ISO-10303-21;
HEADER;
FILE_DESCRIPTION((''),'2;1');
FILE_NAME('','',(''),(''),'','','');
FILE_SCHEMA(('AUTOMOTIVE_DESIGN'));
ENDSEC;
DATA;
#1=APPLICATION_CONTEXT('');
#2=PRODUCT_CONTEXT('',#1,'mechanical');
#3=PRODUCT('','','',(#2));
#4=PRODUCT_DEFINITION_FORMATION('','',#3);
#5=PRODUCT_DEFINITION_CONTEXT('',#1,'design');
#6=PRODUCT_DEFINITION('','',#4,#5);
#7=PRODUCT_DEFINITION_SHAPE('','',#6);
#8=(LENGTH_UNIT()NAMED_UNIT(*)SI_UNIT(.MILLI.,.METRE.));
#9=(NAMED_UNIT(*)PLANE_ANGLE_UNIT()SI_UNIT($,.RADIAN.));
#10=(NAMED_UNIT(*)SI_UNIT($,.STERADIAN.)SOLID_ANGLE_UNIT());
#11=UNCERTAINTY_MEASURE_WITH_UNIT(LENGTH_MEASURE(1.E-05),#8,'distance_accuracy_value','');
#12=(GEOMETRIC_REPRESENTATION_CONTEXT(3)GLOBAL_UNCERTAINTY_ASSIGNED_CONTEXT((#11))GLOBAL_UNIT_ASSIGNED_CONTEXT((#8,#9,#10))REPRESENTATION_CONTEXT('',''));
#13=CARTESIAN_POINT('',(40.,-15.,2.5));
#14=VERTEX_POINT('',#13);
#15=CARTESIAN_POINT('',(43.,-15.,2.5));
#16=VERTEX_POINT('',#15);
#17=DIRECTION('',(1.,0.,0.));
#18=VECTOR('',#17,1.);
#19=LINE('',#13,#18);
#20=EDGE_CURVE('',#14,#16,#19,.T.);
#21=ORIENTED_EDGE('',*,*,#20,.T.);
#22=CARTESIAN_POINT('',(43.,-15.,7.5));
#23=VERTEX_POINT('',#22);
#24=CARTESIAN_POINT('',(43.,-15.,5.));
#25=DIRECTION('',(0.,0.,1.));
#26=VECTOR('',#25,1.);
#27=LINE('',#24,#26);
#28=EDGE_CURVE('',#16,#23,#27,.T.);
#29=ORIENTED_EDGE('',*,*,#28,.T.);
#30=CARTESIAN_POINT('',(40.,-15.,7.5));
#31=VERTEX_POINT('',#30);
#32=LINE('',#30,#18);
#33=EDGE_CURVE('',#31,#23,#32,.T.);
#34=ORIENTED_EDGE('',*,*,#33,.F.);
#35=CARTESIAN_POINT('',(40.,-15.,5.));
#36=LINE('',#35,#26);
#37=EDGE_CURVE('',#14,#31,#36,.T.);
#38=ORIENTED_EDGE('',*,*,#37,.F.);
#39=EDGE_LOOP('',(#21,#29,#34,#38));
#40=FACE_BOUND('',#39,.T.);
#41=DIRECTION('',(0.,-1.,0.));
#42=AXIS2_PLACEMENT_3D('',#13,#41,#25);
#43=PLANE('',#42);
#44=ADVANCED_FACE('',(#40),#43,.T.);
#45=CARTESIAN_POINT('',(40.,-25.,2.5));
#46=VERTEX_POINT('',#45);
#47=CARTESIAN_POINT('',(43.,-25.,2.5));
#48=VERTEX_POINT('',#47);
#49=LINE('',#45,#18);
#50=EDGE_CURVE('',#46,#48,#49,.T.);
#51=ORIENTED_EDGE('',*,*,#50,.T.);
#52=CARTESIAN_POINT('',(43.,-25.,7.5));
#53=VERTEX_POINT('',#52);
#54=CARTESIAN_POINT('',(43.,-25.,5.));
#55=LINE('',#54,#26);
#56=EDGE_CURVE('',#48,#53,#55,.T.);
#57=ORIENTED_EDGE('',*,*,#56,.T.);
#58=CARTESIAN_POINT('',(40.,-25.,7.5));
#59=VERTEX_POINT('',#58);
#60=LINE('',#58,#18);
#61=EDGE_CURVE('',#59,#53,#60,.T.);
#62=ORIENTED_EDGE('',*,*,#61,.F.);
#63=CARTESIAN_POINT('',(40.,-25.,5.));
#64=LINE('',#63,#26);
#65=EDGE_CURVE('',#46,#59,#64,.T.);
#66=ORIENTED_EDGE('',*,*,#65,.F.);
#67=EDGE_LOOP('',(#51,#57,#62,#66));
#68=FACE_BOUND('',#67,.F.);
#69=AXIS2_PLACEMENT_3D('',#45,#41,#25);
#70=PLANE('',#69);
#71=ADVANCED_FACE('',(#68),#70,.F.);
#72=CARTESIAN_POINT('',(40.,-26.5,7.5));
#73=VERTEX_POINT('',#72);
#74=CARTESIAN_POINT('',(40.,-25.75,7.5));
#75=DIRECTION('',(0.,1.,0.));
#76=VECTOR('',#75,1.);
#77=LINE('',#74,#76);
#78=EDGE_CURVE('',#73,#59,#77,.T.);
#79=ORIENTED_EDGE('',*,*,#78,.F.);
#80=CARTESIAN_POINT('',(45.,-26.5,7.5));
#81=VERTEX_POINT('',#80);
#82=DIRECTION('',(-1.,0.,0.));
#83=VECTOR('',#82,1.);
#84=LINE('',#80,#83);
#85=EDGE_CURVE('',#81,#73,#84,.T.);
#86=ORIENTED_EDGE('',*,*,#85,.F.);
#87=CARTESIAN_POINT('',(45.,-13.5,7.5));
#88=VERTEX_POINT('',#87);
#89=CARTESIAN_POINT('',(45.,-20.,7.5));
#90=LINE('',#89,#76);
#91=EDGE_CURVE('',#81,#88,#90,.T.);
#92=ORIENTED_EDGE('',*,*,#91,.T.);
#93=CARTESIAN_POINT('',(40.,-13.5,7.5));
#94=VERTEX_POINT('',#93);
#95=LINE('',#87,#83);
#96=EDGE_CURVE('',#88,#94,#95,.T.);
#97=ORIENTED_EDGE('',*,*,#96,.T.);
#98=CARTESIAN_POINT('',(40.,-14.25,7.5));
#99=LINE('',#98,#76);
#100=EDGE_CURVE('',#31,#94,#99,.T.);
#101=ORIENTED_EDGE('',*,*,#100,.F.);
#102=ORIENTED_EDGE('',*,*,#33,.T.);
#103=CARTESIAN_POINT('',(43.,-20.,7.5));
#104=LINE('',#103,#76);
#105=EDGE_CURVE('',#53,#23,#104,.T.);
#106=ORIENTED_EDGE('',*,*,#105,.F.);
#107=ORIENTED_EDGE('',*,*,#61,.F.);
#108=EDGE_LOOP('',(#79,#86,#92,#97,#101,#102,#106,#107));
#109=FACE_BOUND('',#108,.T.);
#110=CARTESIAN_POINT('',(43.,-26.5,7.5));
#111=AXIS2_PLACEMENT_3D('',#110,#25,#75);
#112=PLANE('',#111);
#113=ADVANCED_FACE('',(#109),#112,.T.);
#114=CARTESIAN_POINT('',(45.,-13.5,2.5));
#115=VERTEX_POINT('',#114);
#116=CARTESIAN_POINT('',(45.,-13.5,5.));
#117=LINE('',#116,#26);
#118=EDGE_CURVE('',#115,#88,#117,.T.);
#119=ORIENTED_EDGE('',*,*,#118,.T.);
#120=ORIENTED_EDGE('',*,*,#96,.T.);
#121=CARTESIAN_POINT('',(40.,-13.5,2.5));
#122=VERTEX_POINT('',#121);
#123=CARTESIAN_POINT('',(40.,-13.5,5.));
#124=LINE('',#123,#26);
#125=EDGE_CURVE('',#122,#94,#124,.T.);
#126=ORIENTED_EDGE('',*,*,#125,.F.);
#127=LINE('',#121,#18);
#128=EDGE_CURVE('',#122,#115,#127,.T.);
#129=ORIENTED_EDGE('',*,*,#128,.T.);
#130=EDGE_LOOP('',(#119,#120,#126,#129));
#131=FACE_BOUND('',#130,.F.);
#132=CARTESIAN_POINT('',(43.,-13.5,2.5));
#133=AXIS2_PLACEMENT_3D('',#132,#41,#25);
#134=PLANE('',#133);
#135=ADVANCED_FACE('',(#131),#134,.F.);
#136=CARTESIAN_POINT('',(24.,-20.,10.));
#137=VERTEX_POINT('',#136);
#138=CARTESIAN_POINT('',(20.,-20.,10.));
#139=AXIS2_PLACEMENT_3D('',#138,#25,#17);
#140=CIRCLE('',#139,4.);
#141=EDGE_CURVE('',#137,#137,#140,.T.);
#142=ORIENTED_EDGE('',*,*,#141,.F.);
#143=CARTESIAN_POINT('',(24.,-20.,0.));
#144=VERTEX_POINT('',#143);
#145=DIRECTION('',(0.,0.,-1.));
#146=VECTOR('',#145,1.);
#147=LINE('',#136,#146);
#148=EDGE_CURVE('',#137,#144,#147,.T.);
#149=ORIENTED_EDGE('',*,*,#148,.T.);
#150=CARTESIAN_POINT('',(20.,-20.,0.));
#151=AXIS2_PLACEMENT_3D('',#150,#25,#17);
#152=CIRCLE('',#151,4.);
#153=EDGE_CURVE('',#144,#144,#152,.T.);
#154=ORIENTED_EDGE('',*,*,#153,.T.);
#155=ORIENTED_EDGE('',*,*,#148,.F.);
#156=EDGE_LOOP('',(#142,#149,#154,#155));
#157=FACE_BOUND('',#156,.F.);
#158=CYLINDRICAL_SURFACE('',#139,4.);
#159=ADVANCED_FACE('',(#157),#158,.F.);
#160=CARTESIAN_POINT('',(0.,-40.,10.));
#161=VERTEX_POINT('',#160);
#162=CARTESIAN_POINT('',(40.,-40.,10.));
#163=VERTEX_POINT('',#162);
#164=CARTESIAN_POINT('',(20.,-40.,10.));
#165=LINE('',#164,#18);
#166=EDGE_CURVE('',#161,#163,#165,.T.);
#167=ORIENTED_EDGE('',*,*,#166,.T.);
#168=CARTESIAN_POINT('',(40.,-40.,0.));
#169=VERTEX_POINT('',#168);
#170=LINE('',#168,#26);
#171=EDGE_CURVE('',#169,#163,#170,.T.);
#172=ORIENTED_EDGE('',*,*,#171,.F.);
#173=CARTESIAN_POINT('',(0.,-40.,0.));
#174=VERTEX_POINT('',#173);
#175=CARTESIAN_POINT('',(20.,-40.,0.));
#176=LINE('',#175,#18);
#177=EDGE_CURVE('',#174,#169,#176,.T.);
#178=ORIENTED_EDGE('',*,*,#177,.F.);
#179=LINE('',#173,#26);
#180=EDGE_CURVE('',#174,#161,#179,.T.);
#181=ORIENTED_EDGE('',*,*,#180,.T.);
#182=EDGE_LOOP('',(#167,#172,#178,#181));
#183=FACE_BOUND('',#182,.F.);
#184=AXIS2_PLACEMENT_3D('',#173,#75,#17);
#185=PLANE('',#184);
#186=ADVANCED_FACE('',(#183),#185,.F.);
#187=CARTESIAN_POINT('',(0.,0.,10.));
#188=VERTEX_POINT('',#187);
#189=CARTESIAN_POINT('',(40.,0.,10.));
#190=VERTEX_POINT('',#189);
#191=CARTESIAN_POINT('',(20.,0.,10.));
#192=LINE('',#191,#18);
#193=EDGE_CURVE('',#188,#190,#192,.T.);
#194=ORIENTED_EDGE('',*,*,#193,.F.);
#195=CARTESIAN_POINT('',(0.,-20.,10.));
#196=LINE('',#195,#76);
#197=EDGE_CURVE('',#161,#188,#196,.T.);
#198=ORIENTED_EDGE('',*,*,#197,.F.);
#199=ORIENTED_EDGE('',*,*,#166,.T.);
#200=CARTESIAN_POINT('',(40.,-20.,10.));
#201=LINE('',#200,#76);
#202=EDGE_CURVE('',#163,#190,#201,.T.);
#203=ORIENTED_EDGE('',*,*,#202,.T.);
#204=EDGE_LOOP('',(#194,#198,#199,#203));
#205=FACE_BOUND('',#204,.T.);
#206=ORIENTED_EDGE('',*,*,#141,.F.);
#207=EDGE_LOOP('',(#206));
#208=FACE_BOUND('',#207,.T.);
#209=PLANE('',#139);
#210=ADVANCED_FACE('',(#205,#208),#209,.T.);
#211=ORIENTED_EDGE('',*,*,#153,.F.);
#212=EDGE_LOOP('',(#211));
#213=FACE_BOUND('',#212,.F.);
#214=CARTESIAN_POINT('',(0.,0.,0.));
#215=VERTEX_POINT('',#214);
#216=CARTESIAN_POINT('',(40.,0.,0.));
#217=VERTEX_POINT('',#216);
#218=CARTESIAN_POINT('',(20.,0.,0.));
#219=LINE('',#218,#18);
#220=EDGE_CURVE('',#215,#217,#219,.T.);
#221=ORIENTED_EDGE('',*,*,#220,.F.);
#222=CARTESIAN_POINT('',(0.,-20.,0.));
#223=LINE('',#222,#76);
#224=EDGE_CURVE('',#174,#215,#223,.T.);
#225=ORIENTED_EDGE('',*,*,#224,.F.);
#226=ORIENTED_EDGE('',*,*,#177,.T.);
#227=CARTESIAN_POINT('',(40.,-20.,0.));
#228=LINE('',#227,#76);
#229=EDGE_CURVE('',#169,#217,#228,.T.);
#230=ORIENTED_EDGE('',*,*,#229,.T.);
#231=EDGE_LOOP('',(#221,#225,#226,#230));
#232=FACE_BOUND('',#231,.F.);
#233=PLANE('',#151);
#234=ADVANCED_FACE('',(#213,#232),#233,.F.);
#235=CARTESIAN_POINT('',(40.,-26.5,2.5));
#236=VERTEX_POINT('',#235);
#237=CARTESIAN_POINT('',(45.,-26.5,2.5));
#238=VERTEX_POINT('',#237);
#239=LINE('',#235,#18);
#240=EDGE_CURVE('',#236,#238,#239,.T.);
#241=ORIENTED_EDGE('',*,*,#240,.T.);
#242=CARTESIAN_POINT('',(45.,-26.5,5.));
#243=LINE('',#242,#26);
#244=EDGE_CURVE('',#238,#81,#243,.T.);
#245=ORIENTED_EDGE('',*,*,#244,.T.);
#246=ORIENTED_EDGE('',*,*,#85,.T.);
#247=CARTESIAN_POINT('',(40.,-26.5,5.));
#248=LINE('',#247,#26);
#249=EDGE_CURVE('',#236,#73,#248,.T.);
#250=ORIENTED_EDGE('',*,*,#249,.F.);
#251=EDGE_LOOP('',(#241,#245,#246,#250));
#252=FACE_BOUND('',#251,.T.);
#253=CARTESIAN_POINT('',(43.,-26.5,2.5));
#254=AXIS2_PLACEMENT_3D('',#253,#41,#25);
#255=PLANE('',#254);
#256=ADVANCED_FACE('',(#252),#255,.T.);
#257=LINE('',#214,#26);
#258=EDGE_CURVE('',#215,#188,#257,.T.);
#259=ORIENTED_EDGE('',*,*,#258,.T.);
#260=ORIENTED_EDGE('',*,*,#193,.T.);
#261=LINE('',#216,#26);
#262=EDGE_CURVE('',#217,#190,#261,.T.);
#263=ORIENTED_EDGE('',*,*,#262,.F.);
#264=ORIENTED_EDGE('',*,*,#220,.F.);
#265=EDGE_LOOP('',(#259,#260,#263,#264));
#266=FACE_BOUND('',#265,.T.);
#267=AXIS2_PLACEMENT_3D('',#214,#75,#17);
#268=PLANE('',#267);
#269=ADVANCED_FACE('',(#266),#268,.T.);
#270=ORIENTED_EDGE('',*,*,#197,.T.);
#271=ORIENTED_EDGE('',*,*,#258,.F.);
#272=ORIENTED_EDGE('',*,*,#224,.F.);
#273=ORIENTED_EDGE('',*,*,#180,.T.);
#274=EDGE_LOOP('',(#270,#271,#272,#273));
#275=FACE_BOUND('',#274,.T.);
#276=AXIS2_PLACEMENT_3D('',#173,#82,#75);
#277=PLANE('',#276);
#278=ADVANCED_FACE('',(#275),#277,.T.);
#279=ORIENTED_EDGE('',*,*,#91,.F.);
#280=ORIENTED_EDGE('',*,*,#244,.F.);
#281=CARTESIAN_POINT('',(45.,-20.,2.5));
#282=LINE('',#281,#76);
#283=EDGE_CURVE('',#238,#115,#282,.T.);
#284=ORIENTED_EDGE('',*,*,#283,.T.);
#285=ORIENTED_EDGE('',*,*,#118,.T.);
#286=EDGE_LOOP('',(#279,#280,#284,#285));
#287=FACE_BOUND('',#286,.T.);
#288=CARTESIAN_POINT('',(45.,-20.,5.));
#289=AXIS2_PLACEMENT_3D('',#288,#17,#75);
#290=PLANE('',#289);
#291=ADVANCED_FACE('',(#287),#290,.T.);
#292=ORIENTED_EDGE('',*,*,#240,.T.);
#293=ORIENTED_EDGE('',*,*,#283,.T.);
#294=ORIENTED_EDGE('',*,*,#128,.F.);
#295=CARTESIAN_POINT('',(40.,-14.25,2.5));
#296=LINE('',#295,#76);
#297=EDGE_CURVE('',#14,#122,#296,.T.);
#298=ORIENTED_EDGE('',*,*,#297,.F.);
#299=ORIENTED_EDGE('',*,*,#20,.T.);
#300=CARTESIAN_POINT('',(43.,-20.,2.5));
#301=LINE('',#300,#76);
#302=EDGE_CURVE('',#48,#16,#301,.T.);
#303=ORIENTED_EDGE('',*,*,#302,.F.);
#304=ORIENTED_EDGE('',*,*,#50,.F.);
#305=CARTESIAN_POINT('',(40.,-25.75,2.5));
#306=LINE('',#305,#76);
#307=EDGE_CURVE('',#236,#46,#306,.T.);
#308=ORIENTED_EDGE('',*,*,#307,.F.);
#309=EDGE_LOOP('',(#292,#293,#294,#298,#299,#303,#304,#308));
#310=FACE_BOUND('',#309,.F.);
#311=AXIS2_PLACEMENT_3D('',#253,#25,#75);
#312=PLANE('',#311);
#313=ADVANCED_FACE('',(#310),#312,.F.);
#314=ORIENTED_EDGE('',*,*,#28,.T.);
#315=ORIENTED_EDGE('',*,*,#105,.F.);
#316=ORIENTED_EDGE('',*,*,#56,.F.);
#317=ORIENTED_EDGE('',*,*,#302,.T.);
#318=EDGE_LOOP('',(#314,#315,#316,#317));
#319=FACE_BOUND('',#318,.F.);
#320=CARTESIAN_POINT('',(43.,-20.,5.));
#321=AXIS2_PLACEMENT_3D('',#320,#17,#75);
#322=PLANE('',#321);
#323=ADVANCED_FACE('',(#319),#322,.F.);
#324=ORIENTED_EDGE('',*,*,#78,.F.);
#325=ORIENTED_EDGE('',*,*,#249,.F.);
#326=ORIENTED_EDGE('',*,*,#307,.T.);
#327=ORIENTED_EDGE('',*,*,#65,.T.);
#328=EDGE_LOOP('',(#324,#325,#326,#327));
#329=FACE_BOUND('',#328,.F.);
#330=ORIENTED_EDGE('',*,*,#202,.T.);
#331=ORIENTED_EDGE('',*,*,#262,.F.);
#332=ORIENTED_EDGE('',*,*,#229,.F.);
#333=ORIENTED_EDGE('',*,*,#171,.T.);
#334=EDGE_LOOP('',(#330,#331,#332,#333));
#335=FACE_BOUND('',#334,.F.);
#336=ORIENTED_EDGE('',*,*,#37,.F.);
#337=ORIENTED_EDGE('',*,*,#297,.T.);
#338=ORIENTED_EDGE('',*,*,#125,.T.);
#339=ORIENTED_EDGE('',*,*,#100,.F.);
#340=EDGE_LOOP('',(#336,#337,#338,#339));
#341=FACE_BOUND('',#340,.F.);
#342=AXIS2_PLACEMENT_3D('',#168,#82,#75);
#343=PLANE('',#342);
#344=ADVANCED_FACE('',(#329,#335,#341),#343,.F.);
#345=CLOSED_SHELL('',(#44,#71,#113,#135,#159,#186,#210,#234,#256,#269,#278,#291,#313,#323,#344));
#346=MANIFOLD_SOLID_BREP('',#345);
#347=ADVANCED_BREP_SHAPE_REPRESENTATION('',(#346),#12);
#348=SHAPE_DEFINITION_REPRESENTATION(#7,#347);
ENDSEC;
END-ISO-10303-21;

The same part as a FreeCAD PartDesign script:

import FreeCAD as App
import Part
import Sketcher
from FreeCAD import Vector
Q = App.Units.Quantity

doc = App.newDocument("Part")
body = doc.addObject("PartDesign::Body", "Body")

# Sketch on XY plane
sketch1 = body.newObject("Sketcher::SketchObject", "Sketch")
sketch1.AttachmentSupport = (doc.getObject("XY_Plane"), [""])
sketch1.MapMode = "FlatFace"
sketch1.addGeometry(Part.LineSegment(Vector(0, 0, 0), Vector(0, -40, 0)), False)
sketch1.addGeometry(Part.LineSegment(Vector(0, -40, 0), Vector(40, -40, 0)), False)
sketch1.addGeometry(Part.LineSegment(Vector(40, -40, 0), Vector(40, 0, 0)), False)
sketch1.addGeometry(Part.LineSegment(Vector(40, 0, 0), Vector(0, 0, 0)), False)
sketch1.addConstraint(Sketcher.Constraint("Coincident", 0, 2, 1, 1))
sketch1.addConstraint(Sketcher.Constraint("Coincident", 1, 2, 2, 1))
sketch1.addConstraint(Sketcher.Constraint("Coincident", 2, 2, 3, 1))
sketch1.addConstraint(Sketcher.Constraint("Coincident", 3, 2, 0, 1))
sketch1.addConstraint(Sketcher.Constraint("Vertical", 0))
sketch1.addConstraint(Sketcher.Constraint("Horizontal", 1))
sketch1.addConstraint(Sketcher.Constraint("Vertical", 2))
sketch1.addConstraint(Sketcher.Constraint("Horizontal", 3))
sketch1.addConstraint(Sketcher.Constraint("Coincident", 3, 2, -1, 1))
sketch1.addConstraint(Sketcher.Constraint("Equal", 3, 0))
sketch1.addConstraint(Sketcher.Constraint("DistanceX", 1, 1, 1, 2, Q("40 mm")))
pad1 = body.newObject("PartDesign::Pad", "Pad")
pad1.Profile = sketch1
pad1.Length = 10

# Sketch on XY plane
sketch2 = body.newObject("Sketcher::SketchObject", "Sketch001")
sketch2.AttachmentSupport = (doc.getObject("XY_Plane"), [""])
sketch2.MapMode = "FlatFace"
sketch2.AttachmentOffset = App.Placement(Vector(0, 0, 10), App.Rotation())
sketch2.addGeometry(Part.Circle(Vector(20, -20, 0), Vector(0, 0, 1), 4), False)
sketch2.addConstraint(Sketcher.Constraint("Diameter", 0, Q("8 mm")))
sketch2.addConstraint(Sketcher.Constraint("DistanceX", -1, 1, 0, 3, Q("20 mm")))
sketch2.addConstraint(Sketcher.Constraint("DistanceY", 0, 3, -1, 1, Q("20 mm")))
pocket1 = body.newObject("PartDesign::Pocket", "Pocket")
pocket1.Profile = sketch2
pocket1.Type = "ThroughAll"

# Sketch on YZ plane
sketch3 = body.newObject("Sketcher::SketchObject", "Sketch002")
sketch3.AttachmentSupport = (doc.getObject("YZ_Plane"), [""])
sketch3.MapMode = "FlatFace"
sketch3.AttachmentOffset = App.Placement(Vector(0, 0, 40), App.Rotation())
sketch3.addGeometry(Part.LineSegment(Vector(-26.5, 7.5, 0), Vector(-26.5, 2.5, 0)), False)
sketch3.addGeometry(Part.LineSegment(Vector(-26.5, 2.5, 0), Vector(-25, 2.5, 0)), False)
sketch3.addGeometry(Part.LineSegment(Vector(-25, 2.5, 0), Vector(-25, 7.5, 0)), False)
sketch3.addGeometry(Part.LineSegment(Vector(-25, 7.5, 0), Vector(-26.5, 7.5, 0)), False)
sketch3.addGeometry(Part.LineSegment(Vector(-15, 7.5, 0), Vector(-15, 2.5, 0)), False)
sketch3.addGeometry(Part.LineSegment(Vector(-15, 2.5, 0), Vector(-13.5, 2.5, 0)), False)
sketch3.addGeometry(Part.LineSegment(Vector(-13.5, 2.5, 0), Vector(-13.5, 7.5, 0)), False)
sketch3.addGeometry(Part.LineSegment(Vector(-13.5, 7.5, 0), Vector(-15, 7.5, 0)), False)
sketch3.addConstraint(Sketcher.Constraint("Coincident", 0, 2, 1, 1))
sketch3.addConstraint(Sketcher.Constraint("Coincident", 1, 2, 2, 1))
sketch3.addConstraint(Sketcher.Constraint("Coincident", 2, 2, 3, 1))
sketch3.addConstraint(Sketcher.Constraint("Coincident", 3, 2, 0, 1))
sketch3.addConstraint(Sketcher.Constraint("Coincident", 4, 2, 5, 1))
sketch3.addConstraint(Sketcher.Constraint("Coincident", 5, 2, 6, 1))
sketch3.addConstraint(Sketcher.Constraint("Coincident", 6, 2, 7, 1))
sketch3.addConstraint(Sketcher.Constraint("Coincident", 7, 2, 4, 1))
sketch3.addConstraint(Sketcher.Constraint("Vertical", 0))
sketch3.addConstraint(Sketcher.Constraint("Horizontal", 1))
sketch3.addConstraint(Sketcher.Constraint("Vertical", 2))
sketch3.addConstraint(Sketcher.Constraint("Horizontal", 3))
sketch3.addConstraint(Sketcher.Constraint("Vertical", 4))
sketch3.addConstraint(Sketcher.Constraint("Horizontal", 5))
sketch3.addConstraint(Sketcher.Constraint("Vertical", 6))
sketch3.addConstraint(Sketcher.Constraint("Horizontal", 7))
sketch3.addConstraint(Sketcher.Constraint("Horizontal", 1, 2, 4, 2))
sketch3.addConstraint(Sketcher.Constraint("Horizontal", 3, 2, 6, 2))
sketch3.addConstraint(Sketcher.Constraint("Equal", 3, 5))
sketch3.addConstraint(Sketcher.Constraint("DistanceY", 0, 2, 0, 1, Q("5 mm")))
sketch3.addConstraint(Sketcher.Constraint("DistanceX", 1, 1, 1, 2, Q("1.5 mm")))
sketch3.addConstraint(Sketcher.Constraint("DistanceX", 1, 2, -1, 1, Q("25 mm")))
sketch3.addConstraint(Sketcher.Constraint("DistanceX", 4, 2, -1, 1, Q("15 mm")))
sketch3.addConstraint(Sketcher.Constraint("DistanceY", -1, 1, 0, 2, Q("2.5 mm")))
pad2 = body.newObject("PartDesign::Pad", "Pad001")
pad2.Profile = sketch3
pad2.Length = 3

# Sketch on YZ plane
sketch4 = body.newObject("Sketcher::SketchObject", "Sketch003")
sketch4.AttachmentSupport = (doc.getObject("YZ_Plane"), [""])
sketch4.MapMode = "FlatFace"
sketch4.AttachmentOffset = App.Placement(Vector(0, 0, 43), App.Rotation())
sketch4.addGeometry(Part.LineSegment(Vector(-26, 8, 0), Vector(-26, 2, 0)), False)
sketch4.addGeometry(Part.LineSegment(Vector(-26, 2, 0), Vector(-14, 2, 0)), False)
sketch4.addGeometry(Part.LineSegment(Vector(-14, 2, 0), Vector(-14, 8, 0)), False)
sketch4.addGeometry(Part.LineSegment(Vector(-14, 8, 0), Vector(-26, 8, 0)), False)
sketch4.addConstraint(Sketcher.Constraint("Coincident", 0, 2, 1, 1))
sketch4.addConstraint(Sketcher.Constraint("Coincident", 1, 2, 2, 1))
sketch4.addConstraint(Sketcher.Constraint("Coincident", 2, 2, 3, 1))
sketch4.addConstraint(Sketcher.Constraint("Coincident", 3, 2, 0, 1))
sketch4.addConstraint(Sketcher.Constraint("Vertical", 0))
sketch4.addConstraint(Sketcher.Constraint("Horizontal", 1))
sketch4.addConstraint(Sketcher.Constraint("Vertical", 2))
sketch4.addConstraint(Sketcher.Constraint("Horizontal", 3))
sketch4.addConstraint(Sketcher.Constraint("DistanceX", 1, 1, 1, 2, Q("13 mm")))
sketch4.addConstraint(Sketcher.Constraint("DistanceY", 0, 2, 0, 1, Q("5 mm")))
sketch4.addConstraint(Sketcher.Constraint("DistanceX", 0, 2, -1, 1, Q("26.5 mm")))
sketch4.addConstraint(Sketcher.Constraint("DistanceY", -1, 1, 0, 2, Q("2.5 mm")))
pad3 = body.newObject("PartDesign::Pad", "Pad002")
pad3.Profile = sketch4
pad3.Length = 2

doc.recompute()
